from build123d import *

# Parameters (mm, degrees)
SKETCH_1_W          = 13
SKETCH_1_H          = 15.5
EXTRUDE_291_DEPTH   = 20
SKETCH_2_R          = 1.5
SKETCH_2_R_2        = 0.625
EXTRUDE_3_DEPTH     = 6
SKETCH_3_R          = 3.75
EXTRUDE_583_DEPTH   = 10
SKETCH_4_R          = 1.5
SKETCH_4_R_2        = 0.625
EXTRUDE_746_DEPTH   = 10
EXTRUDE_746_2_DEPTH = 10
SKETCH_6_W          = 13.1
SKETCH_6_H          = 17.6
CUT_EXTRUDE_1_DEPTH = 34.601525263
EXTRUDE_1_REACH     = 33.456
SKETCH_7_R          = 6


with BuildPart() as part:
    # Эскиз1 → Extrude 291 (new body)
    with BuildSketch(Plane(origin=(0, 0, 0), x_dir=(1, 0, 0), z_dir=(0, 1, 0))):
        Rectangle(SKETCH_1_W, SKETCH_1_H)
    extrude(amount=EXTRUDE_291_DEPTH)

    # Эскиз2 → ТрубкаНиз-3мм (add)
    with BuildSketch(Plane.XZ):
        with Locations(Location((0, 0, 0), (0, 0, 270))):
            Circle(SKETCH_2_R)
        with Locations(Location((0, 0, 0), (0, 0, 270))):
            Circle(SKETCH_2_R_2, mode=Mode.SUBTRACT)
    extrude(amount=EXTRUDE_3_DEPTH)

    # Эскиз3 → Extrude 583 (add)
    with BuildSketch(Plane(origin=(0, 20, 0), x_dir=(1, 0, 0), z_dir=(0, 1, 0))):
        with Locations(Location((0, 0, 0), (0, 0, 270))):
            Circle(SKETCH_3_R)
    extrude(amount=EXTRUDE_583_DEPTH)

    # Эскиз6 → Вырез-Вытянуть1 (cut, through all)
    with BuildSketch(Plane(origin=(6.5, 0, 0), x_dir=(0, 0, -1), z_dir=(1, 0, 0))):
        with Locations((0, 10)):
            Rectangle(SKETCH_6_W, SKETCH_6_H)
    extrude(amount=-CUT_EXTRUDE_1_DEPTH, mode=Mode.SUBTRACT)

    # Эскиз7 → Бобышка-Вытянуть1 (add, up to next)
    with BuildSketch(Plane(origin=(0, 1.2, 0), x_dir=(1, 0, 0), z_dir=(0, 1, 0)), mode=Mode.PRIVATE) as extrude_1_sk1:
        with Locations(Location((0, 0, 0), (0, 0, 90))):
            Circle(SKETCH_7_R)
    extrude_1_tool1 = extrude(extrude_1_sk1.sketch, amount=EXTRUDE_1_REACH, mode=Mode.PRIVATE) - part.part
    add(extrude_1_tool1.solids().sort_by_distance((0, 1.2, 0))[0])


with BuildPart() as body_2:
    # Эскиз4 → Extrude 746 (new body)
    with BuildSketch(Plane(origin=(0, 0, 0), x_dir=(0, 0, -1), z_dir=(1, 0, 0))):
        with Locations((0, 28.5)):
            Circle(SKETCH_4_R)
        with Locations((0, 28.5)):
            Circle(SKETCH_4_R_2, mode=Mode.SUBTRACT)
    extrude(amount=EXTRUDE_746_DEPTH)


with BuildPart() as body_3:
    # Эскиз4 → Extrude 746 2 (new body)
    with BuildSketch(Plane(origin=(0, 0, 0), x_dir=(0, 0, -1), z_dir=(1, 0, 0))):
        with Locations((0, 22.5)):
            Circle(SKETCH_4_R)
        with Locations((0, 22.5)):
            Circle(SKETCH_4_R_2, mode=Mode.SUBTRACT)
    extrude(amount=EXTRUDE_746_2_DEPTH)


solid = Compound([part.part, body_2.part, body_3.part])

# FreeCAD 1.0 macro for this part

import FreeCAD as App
import Part
import Sketcher
from FreeCAD import Vector

doc = App.newDocument("Part")
body = doc.addObject("PartDesign::Body", "Body")

# Sketch on XZ plane
sketch1 = doc.addObject("Sketcher::SketchObject", "Sketch")
body.addObject(sketch1)
sketch1.AttachmentSupport = (doc.XZ_Plane, [""])
sketch1.MapMode = "FlatFace"
sketch1.addGeometry([
    Part.LineSegment(Vector(-6, -8, 0), Vector(-6, 8, 0)),
    Part.LineSegment(Vector(-6, 8, 0), Vector(6, 8, 0)),
    Part.LineSegment(Vector(6, 8, 0), Vector(6, -8, 0)),
    Part.LineSegment(Vector(6, -8, 0), Vector(-6, -8, 0)),
], False)
sketch1.addConstraint([
    Sketcher.Constraint("Coincident", 0, 2, 1, 1),
    Sketcher.Constraint("Coincident", 1, 2, 2, 1),
    Sketcher.Constraint("Coincident", 2, 2, 3, 1),
    Sketcher.Constraint("Coincident", 3, 2, 0, 1),
    Sketcher.Constraint("Vertical", 0),
    Sketcher.Constraint("Horizontal", 1),
    Sketcher.Constraint("Vertical", 2),
    Sketcher.Constraint("Horizontal", 3),
    Sketcher.Constraint("Symmetric", 0, 2, 2, 2, -1, 1),
    Sketcher.Constraint("DistanceX", 1, 1, 1, 2, 13.0),
    Sketcher.Constraint("DistanceY", 0, 1, 0, 2, 15.5),
])
pad1 = doc.addObject("PartDesign::Pad", "Pad")
body.addObject(pad1)
pad1.Profile = sketch1
pad1.Length = 20
pad1.Reversed = True

# Sketch on XZ plane
sketch2 = doc.addObject("Sketcher::SketchObject", "Sketch001")
body.addObject(sketch2)
sketch2.AttachmentSupport = (doc.XZ_Plane, [""])
sketch2.MapMode = "FlatFace"
sketch2.addGeometry([
    Part.Circle(Vector(0, 0, 0), Vector(0, 0, 1), 1.5),
    Part.Circle(Vector(0, 0, 0), Vector(0, 0, 1), 0.6),
], False)
sketch2.addConstraint([
    Sketcher.Constraint("Coincident", 0, 3, -1, 1),
    Sketcher.Constraint("Coincident", 1, 3, -1, 1),
    Sketcher.Constraint("Diameter", 0, 3.0),
    Sketcher.Constraint("Diameter", 1, 1.25),
])
pad2 = doc.addObject("PartDesign::Pad", "Pad001")
body.addObject(pad2)
pad2.Profile = sketch2
pad2.Length = 6

# Sketch on XZ plane
sketch3 = doc.addObject("Sketcher::SketchObject", "Sketch002")
body.addObject(sketch3)
sketch3.AttachmentSupport = (doc.XZ_Plane, [""])
sketch3.MapMode = "FlatFace"
sketch3.AttachmentOffset = App.Placement(Vector(0, 0, -20), App.Rotation())
sketch3.addGeometry(Part.Circle(Vector(0, 0, 0), Vector(0, 0, 1), 3.8), False)
sketch3.addConstraint([
    Sketcher.Constraint("Coincident", 0, 3, -1, 1),
    Sketcher.Constraint("Diameter", 0, 7.5),
])
pad3 = doc.addObject("PartDesign::Pad", "Pad002")
body.addObject(pad3)
pad3.Profile = sketch3
pad3.Length = 10
pad3.Reversed = True

# Sketch on YZ plane
sketch4 = doc.addObject("Sketcher::SketchObject", "Sketch003")
body.addObject(sketch4)
sketch4.AttachmentSupport = (doc.YZ_Plane, [""])
sketch4.MapMode = "FlatFace"
sketch4.AttachmentOffset = App.Placement(Vector(0, 0, 6.5), App.Rotation())
sketch4.addGeometry([
    Part.LineSegment(Vector(19, 7, 0), Vector(1, 7, 0)),
    Part.LineSegment(Vector(1, 7, 0), Vector(1, -7, 0)),
    Part.LineSegment(Vector(1, -7, 0), Vector(19, -7, 0)),
    Part.LineSegment(Vector(19, -7, 0), Vector(19, 7, 0)),
], False)
sketch4.addConstraint([
    Sketcher.Constraint("Coincident", 0, 2, 1, 1),
    Sketcher.Constraint("Coincident", 1, 2, 2, 1),
    Sketcher.Constraint("Coincident", 2, 2, 3, 1),
    Sketcher.Constraint("Coincident", 3, 2, 0, 1),
    Sketcher.Constraint("Horizontal", 0),
    Sketcher.Constraint("Vertical", 1),
    Sketcher.Constraint("Horizontal", 2),
    Sketcher.Constraint("Vertical", 3),
    Sketcher.Constraint("DistanceX", 0, 2, 0, 1, 17.6),
    Sketcher.Constraint("DistanceY", 1, 2, 1, 1, 13.1),
    Sketcher.Constraint("DistanceX", -1, 1, 0, 2, 1.2),
    Sketcher.Constraint("DistanceY", -1, 1, 0, 2, 6.55),
])
pocket1 = doc.addObject("PartDesign::Pocket", "Pocket")
body.addObject(pocket1)
pocket1.Profile = sketch4
pocket1.Type = "ThroughAll"

# Sketch on XZ plane
sketch5 = doc.addObject("Sketcher::SketchObject", "Sketch004")
body.addObject(sketch5)
sketch5.AttachmentSupport = (doc.XZ_Plane, [""])
sketch5.MapMode = "FlatFace"
sketch5.AttachmentOffset = App.Placement(Vector(0, 0, -1.2), App.Rotation())
sketch5.addGeometry(Part.Circle(Vector(0, 0, 0), Vector(0, 0, 1), 6), False)
sketch5.addConstraint([
    Sketcher.Constraint("Coincident", 0, 3, -1, 1),
    Sketcher.Constraint("Diameter", 0, 12.0),
])
pad4 = doc.addObject("PartDesign::Pad", "Pad003")
body.addObject(pad4)
pad4.Profile = sketch5
pad4.Type = "UpToFirst"
pad4.Reversed = True
body2 = doc.addObject("PartDesign::Body", "Body001")

# Sketch on YZ plane
sketch6 = doc.addObject("Sketcher::SketchObject", "Sketch005")
body2.addObject(sketch6)
sketch6.AttachmentSupport = (doc.getObject("YZ_Plane001"), [""])
sketch6.MapMode = "FlatFace"
sketch6.addGeometry([
    Part.Circle(Vector(28.5, 0, 0), Vector(0, 0, 1), 1.5),
    Part.Circle(Vector(28.5, 0, 0), Vector(0, 0, 1), 0.6),
], False)
sketch6.addConstraint([
    Sketcher.Constraint("Coincident", 1, 3, 0, 3),
    Sketcher.Constraint("PointOnObject", 0, 3, -1),
    Sketcher.Constraint("Diameter", 0, 3.0),
    Sketcher.Constraint("Diameter", 1, 1.25),
    Sketcher.Constraint("DistanceX", -1, 1, 0, 3, 28.5),
])
pad5 = doc.addObject("PartDesign::Pad", "Pad004")
body2.addObject(pad5)
pad5.Profile = sketch6
pad5.Length = 10
body3 = doc.addObject("PartDesign::Body", "Body002")

# Sketch on YZ plane
sketch7 = doc.addObject("Sketcher::SketchObject", "Sketch006")
body3.addObject(sketch7)
sketch7.AttachmentSupport = (doc.getObject("YZ_Plane002"), [""])
sketch7.MapMode = "FlatFace"
sketch7.addGeometry([
    Part.Circle(Vector(22.5, 0, 0), Vector(0, 0, 1), 1.5),
    Part.Circle(Vector(22.5, 0, 0), Vector(0, 0, 1), 0.6),
], False)
sketch7.addConstraint([
    Sketcher.Constraint("Coincident", 1, 3, 0, 3),
    Sketcher.Constraint("PointOnObject", 0, 3, -1),
    Sketcher.Constraint("Diameter", 0, 3.0),
    Sketcher.Constraint("Diameter", 1, 1.25),
    Sketcher.Constraint("DistanceX", -1, 1, 0, 3, 22.5),
])
pad6 = doc.addObject("PartDesign::Pad", "Pad005")
body3.addObject(pad6)
pad6.Profile = sketch7
pad6.Length = 10

doc.recompute()
